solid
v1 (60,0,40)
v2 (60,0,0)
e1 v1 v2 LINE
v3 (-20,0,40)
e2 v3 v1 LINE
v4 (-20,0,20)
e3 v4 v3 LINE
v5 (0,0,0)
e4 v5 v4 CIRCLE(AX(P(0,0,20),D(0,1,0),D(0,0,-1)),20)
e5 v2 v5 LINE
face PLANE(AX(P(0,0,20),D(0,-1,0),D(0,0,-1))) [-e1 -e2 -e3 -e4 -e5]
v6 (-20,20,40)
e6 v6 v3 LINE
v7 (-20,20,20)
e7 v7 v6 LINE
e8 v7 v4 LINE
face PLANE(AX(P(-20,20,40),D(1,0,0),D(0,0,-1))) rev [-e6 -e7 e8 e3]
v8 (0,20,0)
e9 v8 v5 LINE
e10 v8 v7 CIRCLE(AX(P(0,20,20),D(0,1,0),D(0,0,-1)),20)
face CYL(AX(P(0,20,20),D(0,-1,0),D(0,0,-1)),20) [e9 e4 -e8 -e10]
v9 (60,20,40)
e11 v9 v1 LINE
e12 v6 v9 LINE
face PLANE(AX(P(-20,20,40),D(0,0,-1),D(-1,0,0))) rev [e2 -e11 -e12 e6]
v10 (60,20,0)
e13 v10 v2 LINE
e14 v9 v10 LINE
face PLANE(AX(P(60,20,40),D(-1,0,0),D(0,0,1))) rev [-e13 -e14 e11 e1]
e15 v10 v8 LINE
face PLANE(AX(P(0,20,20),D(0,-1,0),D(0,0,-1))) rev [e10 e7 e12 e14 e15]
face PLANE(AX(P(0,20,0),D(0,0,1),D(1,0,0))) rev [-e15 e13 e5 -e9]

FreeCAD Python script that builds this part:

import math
import FreeCAD as App
import Part
import Sketcher

doc = App.newDocument("Part")
body = doc.addObject("PartDesign::Body", "Body")

# Sketch on XZ plane
sketch1 = body.newObject("Sketcher::SketchObject", "Sketch")
sketch1.AttachmentSupport = (doc.getObject("XZ_Plane"), [""])
sketch1.MapMode = "FlatFace"
sketch1.addGeometry([
    Part.LineSegment(App.Vector(60, 0, 0), App.Vector(0, 0, 0)),  # 0
    Part.ArcOfCircle(Part.Circle(App.Vector(0, 20, 0), App.Vector(0, 0, 1), 20), math.radians(180), math.radians(270)),  # 1
    Part.LineSegment(App.Vector(-20, 20, 0), App.Vector(-20, 40, 0)),  # 2
    Part.LineSegment(App.Vector(-20, 40, 0), App.Vector(60, 40, 0)),  # 3
    Part.LineSegment(App.Vector(60, 40, 0), App.Vector(60, 0, 0)),  # 4
], False)
sketch1.addConstraint([
    Sketcher.Constraint("Tangent", 0, 2, 1, 2),
    Sketcher.Constraint("Tangent", 1, 1, 2, 1),
    Sketcher.Constraint("Coincident", 2, 2, 3, 1),
    Sketcher.Constraint("Coincident", 3, 2, 4, 1),
    Sketcher.Constraint("Coincident", 4, 2, 0, 1),
    Sketcher.Constraint("Horizontal", 0),
    Sketcher.Constraint("Vertical", 2),
    Sketcher.Constraint("Horizontal", 3),
    Sketcher.Constraint("Vertical", 4),
    Sketcher.Constraint("Coincident", 0, 2, -1, 1),
    Sketcher.Constraint("Radius", 1, 20.0),
    Sketcher.Constraint("DistanceX", 0, 2, 0, 1, 60.0),
    Sketcher.Constraint("DistanceY", 2, 1, 2, 2, 20.0),
])
pad1 = body.newObject("PartDesign::Pad", "Pad")
pad1.Profile = sketch1
pad1.Length = 20
pad1.Reversed = True

doc.recompute()
